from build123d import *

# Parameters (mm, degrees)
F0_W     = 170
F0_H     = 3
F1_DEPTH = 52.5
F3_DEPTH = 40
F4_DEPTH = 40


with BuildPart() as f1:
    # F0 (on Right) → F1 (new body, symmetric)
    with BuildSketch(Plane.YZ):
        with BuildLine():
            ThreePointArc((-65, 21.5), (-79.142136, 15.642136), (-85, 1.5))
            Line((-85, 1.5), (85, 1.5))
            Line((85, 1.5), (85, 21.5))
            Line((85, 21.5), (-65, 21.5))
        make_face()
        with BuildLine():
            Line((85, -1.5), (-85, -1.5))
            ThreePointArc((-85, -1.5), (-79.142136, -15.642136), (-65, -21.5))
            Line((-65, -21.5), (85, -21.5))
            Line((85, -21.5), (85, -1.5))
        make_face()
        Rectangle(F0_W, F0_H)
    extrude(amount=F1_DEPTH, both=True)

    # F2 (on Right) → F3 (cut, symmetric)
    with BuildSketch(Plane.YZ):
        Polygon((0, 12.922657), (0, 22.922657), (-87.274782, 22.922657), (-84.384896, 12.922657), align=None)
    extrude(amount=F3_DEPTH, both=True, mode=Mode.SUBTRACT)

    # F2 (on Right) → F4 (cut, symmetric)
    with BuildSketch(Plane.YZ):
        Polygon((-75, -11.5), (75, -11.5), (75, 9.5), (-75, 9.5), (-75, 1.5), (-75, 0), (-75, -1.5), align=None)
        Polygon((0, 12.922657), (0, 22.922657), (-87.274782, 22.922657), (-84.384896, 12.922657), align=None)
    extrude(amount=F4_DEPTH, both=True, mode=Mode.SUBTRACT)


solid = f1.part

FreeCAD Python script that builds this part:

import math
import FreeCAD as App
import Part
import Sketcher

doc = App.newDocument("Part")
body = doc.addObject("PartDesign::Body", "Body")

# Sketch on YZ plane
sketch1 = doc.addObject("Sketcher::SketchObject", "Sketch")
body.addObject(sketch1)
sketch1.AttachmentSupport = (doc.YZ_Plane, [""])
sketch1.MapMode = "FlatFace"
sketch1.addGeometry([
    Part.ArcOfCircle(Part.Circle(App.Vector(-65.000001, 1.500001, 0), App.Vector(0, 0, 1), 19.999999), math.radians(89.999996), math.radians(180.000004)),  # 0
    Part.LineSegment(App.Vector(-85, 1.5, 0), App.Vector(-85, -1.5, 0)),  # 1
    Part.ArcOfCircle(Part.Circle(App.Vector(-65.000001, -1.500001, 0), App.Vector(0, 0, 1), 19.999999), math.radians(179.999996), math.radians(270.000004)),  # 2
    Part.LineSegment(App.Vector(-65, -21.5, 0), App.Vector(85, -21.5, 0)),  # 3
    Part.LineSegment(App.Vector(85, -21.5, 0), App.Vector(85, 21.5, 0)),  # 4
    Part.LineSegment(App.Vector(85, 21.5, 0), App.Vector(-65, 21.5, 0)),  # 5
], False)
sketch1.addConstraint([
    Sketcher.Constraint("Tangent", 0, 2, 1, 1),
    Sketcher.Constraint("Tangent", 1, 2, 2, 1),
    Sketcher.Constraint("Tangent", 2, 2, 3, 1),
    Sketcher.Constraint("Coincident", 3, 2, 4, 1),
    Sketcher.Constraint("Coincident", 4, 2, 5, 1),
    Sketcher.Constraint("Tangent", 5, 2, 0, 1),
    Sketcher.Constraint("Vertical", 1),
    Sketcher.Constraint("Horizontal", 3),
    Sketcher.Constraint("Vertical", 4),
    Sketcher.Constraint("Horizontal", 5),
    Sketcher.Constraint("Equal", 0, 2),
    Sketcher.Constraint("Radius", 0, 19.999999),
    Sketcher.Constraint("DistanceX", 3, 1, 3, 2, 150.0),
    Sketcher.Constraint("DistanceY", 1, 2, 1, 1, 3.0),
    Sketcher.Constraint("DistanceX", 0, 3, -1, 1, 65.000001),
    Sketcher.Constraint("DistanceY", -1, 1, 0, 3, 1.500001),
])
pad1 = doc.addObject("PartDesign::Pad", "Pad")
body.addObject(pad1)
pad1.Profile = sketch1
pad1.Length = 105
pad1.Midplane = True

# Sketch on YZ plane
sketch2 = doc.addObject("Sketcher::SketchObject", "Sketch001")
body.addObject(sketch2)
sketch2.AttachmentSupport = (doc.YZ_Plane, [""])
sketch2.MapMode = "FlatFace"
sketch2.addGeometry([
    Part.LineSegment(App.Vector(0, 12.922657, 0), App.Vector(0, 22.922657, 0)),
    Part.LineSegment(App.Vector(0, 22.922657, 0), App.Vector(-87.274782, 22.922657, 0)),
    Part.LineSegment(App.Vector(-87.274782, 22.922657, 0), App.Vector(-84.384896, 12.922657, 0)),
    Part.LineSegment(App.Vector(-84.384896, 12.922657, 0), App.Vector(0, 12.922657, 0)),
], False)
sketch2.addConstraint([
    Sketcher.Constraint("Coincident", 0, 2, 1, 1),
    Sketcher.Constraint("Coincident", 1, 2, 2, 1),
    Sketcher.Constraint("Coincident", 2, 2, 3, 1),
    Sketcher.Constraint("Coincident", 3, 2, 0, 1),
    Sketcher.Constraint("Vertical", 0),
    Sketcher.Constraint("Horizontal", 1),
    Sketcher.Constraint("Horizontal", 3),
    Sketcher.Constraint("PointOnObject", 0, 2, -2),
    Sketcher.Constraint("DistanceY", 0, 1, 0, 2, 10.0),
    Sketcher.Constraint("Distance", 2, 10.4092),
    Sketcher.Constraint("DistanceX", 1, 2, 1, 1, 87.274782),
    Sketcher.Constraint("DistanceY", -1, 1, 0, 2, 22.922657),
])
pocket1 = doc.addObject("PartDesign::Pocket", "Pocket")
body.addObject(pocket1)
pocket1.Profile = sketch2
pocket1.Length = 80
pocket1.Midplane = True

# Sketch on YZ plane
sketch3 = doc.addObject("Sketcher::SketchObject", "Sketch002")
body.addObject(sketch3)
sketch3.AttachmentSupport = (doc.YZ_Plane, [""])
sketch3.MapMode = "FlatFace"
sketch3.addGeometry([
    Part.LineSegment(App.Vector(-75, -11.5, 0), App.Vector(75, -11.5, 0)),  # 0
    Part.LineSegment(App.Vector(75, -11.5, 0), App.Vector(75, 9.5, 0)),  # 1
    Part.LineSegment(App.Vector(75, 9.5, 0), App.Vector(-75, 9.5, 0)),  # 2
    Part.LineSegment(App.Vector(-75, 9.5, 0), App.Vector(-75, -11.5, 0)),  # 3
    Part.LineSegment(App.Vector(0, 12.922657, 0), App.Vector(0, 22.922657, 0)),  # 4
    Part.LineSegment(App.Vector(0, 22.922657, 0), App.Vector(-87.274782, 22.922657, 0)),  # 5
    Part.LineSegment(App.Vector(-87.274782, 22.922657, 0), App.Vector(-84.384896, 12.922657, 0)),  # 6
    Part.LineSegment(App.Vector(-84.384896, 12.922657, 0), App.Vector(0, 12.922657, 0)),  # 7
], False)
sketch3.addConstraint([
    Sketcher.Constraint("Coincident", 0, 2, 1, 1),
    Sketcher.Constraint("Coincident", 1, 2, 2, 1),
    Sketcher.Constraint("Coincident", 2, 2, 3, 1),
    Sketcher.Constraint("Coincident", 3, 2, 0, 1),
    Sketcher.Constraint("Coincident", 4, 2, 5, 1),
    Sketcher.Constraint("Coincident", 5, 2, 6, 1),
    Sketcher.Constraint("Coincident", 6, 2, 7, 1),
    Sketcher.Constraint("Coincident", 7, 2, 4, 1),
    Sketcher.Constraint("Horizontal", 0),
    Sketcher.Constraint("Vertical", 1),
    Sketcher.Constraint("Horizontal", 2),
    Sketcher.Constraint("Vertical", 3),
    Sketcher.Constraint("Vertical", 4),
    Sketcher.Constraint("Horizontal", 5),
    Sketcher.Constraint("Horizontal", 7),
    Sketcher.Constraint("PointOnObject", 4, 2, -2),
    Sketcher.Constraint("DistanceX", 0, 1, 0, 2, 150.0),
    Sketcher.Constraint("DistanceY", 1, 1, 1, 2, 21.0),
    Sketcher.Constraint("DistanceY", 4, 1, 4, 2, 10.0),
    Sketcher.Constraint("DistanceX", -1, 1, 0, 2, 75.0),
    Sketcher.Constraint("DistanceY", 0, 2, -1, 1, 11.5),
    Sketcher.Constraint("Distance", 6, 10.4092),
    Sketcher.Constraint("DistanceX", 5, 2, 5, 1, 87.274782),
    Sketcher.Constraint("DistanceY", -1, 1, 4, 2, 22.922657),
])
pocket2 = doc.addObject("PartDesign::Pocket", "Pocket001")
body.addObject(pocket2)
pocket2.Profile = sketch3
pocket2.Length = 80
pocket2.Midplane = True

doc.recompute()
